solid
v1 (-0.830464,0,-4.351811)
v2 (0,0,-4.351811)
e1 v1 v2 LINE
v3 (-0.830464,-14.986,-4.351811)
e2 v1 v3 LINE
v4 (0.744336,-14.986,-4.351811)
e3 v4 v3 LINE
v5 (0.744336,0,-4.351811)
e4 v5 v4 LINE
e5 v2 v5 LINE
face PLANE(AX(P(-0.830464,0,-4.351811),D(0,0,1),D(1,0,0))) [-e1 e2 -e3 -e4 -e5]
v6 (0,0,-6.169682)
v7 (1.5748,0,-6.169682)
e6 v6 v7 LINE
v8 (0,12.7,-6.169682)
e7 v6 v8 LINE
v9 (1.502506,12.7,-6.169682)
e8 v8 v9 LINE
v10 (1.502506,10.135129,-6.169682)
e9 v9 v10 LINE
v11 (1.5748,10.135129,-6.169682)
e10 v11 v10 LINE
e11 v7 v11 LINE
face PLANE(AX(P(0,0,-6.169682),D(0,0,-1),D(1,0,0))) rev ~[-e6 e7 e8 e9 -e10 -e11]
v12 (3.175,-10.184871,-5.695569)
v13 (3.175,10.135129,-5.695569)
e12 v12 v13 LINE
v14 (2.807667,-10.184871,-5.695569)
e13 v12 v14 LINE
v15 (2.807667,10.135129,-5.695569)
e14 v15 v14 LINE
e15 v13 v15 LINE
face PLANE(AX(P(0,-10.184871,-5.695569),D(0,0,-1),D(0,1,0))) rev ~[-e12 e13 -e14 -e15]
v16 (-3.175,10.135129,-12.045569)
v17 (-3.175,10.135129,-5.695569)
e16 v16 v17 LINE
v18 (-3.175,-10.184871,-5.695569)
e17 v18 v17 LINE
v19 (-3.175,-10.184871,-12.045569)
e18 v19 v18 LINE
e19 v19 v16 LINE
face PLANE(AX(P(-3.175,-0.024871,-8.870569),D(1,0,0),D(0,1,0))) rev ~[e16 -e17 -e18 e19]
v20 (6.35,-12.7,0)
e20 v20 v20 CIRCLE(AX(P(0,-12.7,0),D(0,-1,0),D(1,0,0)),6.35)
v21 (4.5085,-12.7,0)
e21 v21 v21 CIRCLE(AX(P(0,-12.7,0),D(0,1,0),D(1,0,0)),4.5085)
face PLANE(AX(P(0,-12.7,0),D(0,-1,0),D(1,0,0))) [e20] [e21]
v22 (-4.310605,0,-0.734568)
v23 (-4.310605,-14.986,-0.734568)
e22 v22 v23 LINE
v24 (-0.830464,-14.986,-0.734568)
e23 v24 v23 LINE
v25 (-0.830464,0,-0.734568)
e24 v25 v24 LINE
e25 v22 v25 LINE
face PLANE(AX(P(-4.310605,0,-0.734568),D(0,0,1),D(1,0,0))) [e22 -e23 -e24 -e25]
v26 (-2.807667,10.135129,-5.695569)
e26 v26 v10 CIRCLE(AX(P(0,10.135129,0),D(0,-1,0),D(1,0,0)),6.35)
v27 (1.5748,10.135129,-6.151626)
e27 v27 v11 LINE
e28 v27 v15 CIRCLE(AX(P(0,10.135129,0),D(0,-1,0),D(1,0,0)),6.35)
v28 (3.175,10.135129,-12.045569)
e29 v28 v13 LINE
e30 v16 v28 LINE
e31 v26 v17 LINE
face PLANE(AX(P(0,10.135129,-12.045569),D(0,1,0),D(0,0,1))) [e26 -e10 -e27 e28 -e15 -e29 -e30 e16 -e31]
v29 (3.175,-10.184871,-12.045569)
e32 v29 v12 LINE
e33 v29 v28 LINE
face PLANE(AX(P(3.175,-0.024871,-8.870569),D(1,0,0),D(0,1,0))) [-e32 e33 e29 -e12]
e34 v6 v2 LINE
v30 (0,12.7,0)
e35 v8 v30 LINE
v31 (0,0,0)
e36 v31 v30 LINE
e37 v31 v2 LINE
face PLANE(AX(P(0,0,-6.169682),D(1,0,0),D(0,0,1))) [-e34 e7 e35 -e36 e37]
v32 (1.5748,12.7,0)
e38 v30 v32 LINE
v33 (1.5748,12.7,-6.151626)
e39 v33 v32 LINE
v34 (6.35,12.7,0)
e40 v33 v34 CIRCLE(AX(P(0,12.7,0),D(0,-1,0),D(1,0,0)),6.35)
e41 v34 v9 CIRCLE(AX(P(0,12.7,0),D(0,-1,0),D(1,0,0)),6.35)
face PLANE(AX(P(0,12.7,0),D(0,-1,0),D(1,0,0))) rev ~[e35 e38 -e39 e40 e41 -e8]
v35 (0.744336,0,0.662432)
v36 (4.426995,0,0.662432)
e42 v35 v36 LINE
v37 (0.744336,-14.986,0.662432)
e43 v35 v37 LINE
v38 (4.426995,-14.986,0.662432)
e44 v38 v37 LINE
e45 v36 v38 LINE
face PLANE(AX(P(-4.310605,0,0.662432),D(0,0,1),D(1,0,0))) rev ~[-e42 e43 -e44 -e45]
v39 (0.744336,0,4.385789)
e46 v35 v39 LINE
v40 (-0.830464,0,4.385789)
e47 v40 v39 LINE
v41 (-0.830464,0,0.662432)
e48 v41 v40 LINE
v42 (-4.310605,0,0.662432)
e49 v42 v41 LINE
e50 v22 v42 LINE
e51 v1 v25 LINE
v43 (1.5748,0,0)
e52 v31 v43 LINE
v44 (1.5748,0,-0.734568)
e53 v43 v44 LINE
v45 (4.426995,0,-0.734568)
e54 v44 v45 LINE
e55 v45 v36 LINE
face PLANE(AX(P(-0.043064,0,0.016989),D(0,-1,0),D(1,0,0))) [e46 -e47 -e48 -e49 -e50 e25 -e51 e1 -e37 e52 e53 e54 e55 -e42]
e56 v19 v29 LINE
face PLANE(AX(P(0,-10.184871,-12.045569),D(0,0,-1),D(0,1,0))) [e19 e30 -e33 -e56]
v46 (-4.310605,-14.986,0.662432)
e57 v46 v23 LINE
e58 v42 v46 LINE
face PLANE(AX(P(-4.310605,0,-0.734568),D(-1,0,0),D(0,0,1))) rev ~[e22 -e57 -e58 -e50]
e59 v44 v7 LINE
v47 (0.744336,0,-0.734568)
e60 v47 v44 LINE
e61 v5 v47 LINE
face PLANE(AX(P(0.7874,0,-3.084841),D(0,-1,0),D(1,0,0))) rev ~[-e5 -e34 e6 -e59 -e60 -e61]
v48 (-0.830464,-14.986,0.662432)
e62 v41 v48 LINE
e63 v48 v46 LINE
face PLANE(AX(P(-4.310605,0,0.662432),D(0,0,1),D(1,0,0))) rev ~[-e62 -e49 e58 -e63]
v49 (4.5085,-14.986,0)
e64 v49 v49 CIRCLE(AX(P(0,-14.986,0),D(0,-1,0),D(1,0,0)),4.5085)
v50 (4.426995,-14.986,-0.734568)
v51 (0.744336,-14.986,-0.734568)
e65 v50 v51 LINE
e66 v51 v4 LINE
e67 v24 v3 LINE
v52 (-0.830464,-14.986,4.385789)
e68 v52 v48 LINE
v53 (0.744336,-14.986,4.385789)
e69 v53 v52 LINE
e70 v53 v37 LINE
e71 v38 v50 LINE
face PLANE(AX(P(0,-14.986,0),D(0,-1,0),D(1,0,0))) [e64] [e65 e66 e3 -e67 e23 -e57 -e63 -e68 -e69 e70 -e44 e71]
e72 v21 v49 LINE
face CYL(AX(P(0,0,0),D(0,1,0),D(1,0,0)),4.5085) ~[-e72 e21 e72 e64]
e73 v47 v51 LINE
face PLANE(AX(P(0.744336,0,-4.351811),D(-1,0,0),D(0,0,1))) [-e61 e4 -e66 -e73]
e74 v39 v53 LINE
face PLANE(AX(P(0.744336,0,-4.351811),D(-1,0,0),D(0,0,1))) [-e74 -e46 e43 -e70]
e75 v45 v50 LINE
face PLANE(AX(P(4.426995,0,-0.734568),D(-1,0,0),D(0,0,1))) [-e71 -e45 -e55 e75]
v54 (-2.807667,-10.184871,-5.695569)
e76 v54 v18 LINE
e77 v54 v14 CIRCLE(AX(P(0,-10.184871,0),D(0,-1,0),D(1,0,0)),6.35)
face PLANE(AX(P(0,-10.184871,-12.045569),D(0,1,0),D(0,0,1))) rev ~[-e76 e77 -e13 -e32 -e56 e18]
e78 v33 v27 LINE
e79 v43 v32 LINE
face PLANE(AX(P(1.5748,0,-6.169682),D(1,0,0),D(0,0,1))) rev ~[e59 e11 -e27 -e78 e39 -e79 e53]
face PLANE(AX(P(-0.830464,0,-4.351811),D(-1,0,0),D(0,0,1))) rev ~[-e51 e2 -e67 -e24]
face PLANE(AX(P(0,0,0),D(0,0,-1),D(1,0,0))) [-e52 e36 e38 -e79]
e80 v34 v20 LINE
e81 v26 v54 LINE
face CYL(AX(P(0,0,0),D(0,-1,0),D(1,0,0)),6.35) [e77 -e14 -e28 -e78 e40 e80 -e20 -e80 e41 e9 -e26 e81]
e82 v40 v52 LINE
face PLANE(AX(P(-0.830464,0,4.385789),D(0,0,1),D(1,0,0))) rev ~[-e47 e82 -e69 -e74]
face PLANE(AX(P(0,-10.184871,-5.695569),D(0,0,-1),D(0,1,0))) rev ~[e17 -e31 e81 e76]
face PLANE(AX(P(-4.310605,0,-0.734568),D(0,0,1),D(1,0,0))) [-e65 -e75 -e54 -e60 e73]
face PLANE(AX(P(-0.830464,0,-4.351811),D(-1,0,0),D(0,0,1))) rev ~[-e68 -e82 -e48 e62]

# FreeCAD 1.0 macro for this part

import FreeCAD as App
import Part
import Sketcher
from FreeCAD import Vector
Q = App.Units.Quantity

doc = App.newDocument("Part")
params = doc.addObject("Spreadsheet::Sheet", "Params")
for row, (alias, value) in enumerate([
    ("sketch1_diameter", "0.5 in"),
    ("pad1_length", "1 in"),
    ("sketch2_width", "0.8 in"),
    ("sketch2_height", "0.25 in"),
    ("pad2_length", "0.25 in"),
    ("sketch3_width", "0.062 in"),
    ("pocket1_length", "1.58 in"),
    ("sketch4_diameter", "0.355 in"),
    ("pad3_length", "0.59 in"),
    ("sketch5_width", "0.344 in"),
    ("sketch5_height", "0.055 in"),
    ("pocket2_length", "0.9 in"),
    ("sketch6_width", "0.062 in"),
    ("sketch6_height", "0.344 in"),
    ("pocket3_length", "1.46 in"),
], start=1):
    params.set(f"A{row}", alias)
    params.set(f"B{row}", "=" + value)
    params.setAlias(f"B{row}", alias)

body = doc.addObject("PartDesign::Body", "Body")

# Sketch on XZ plane
sketch1 = body.newObject("Sketcher::SketchObject", "Sketch")
sketch1.AttachmentSupport = (doc.getObject("XZ_Plane"), [""])
sketch1.MapMode = "FlatFace"
sketch1.addGeometry(Part.Circle(Vector(0, 0, 0), Vector(0, 0, 1), 6), False)
sketch1.addConstraint(Sketcher.Constraint("Coincident", 0, 3, -1, 1))
sketch1.addConstraint(Sketcher.Constraint("Diameter", 0, Q("0.5 in")))
sketch1.setExpression("Constraints[1]", "Params.sketch1_diameter")
pad1 = body.newObject("PartDesign::Pad", "Pad")
pad1.Profile = sketch1
pad1.setExpression("Length", "Params.pad1_length")
pad1.Midplane = True

# Sketch on YZ plane
sketch2 = body.newObject("Sketcher::SketchObject", "Sketch001")
sketch2.AttachmentSupport = (doc.getObject("YZ_Plane"), [""])
sketch2.MapMode = "FlatFace"
sketch2.addGeometry(Part.LineSegment(Vector(-10, -6, 0), Vector(-10, -12, 0)), False)
sketch2.addGeometry(Part.LineSegment(Vector(-10, -12, 0), Vector(10, -12, 0)), False)
sketch2.addGeometry(Part.LineSegment(Vector(10, -12, 0), Vector(10, -6, 0)), False)
sketch2.addGeometry(Part.LineSegment(Vector(10, -6, 0), Vector(-10, -6, 0)), False)
sketch2.addConstraint(Sketcher.Constraint("Coincident", 0, 2, 1, 1))
sketch2.addConstraint(Sketcher.Constraint("Coincident", 1, 2, 2, 1))
sketch2.addConstraint(Sketcher.Constraint("Coincident", 2, 2, 3, 1))
sketch2.addConstraint(Sketcher.Constraint("Coincident", 3, 2, 0, 1))
sketch2.addConstraint(Sketcher.Constraint("Vertical", 0))
sketch2.addConstraint(Sketcher.Constraint("Horizontal", 1))
sketch2.addConstraint(Sketcher.Constraint("Vertical", 2))
sketch2.addConstraint(Sketcher.Constraint("Horizontal", 3))
sketch2.addConstraint(Sketcher.Constraint("DistanceX", 1, 1, 1, 2, Q("0.8 in")))
sketch2.addConstraint(Sketcher.Constraint("DistanceY", 0, 2, 0, 1, Q("0.25 in")))
sketch2.addConstraint(Sketcher.Constraint("DistanceX", 0, 2, -1, 1, 10.184871))
sketch2.addConstraint(Sketcher.Constraint("DistanceY", 0, 2, -1, 1, 12.045569))
sketch2.setExpression("Constraints[8]", "Params.sketch2_width")
sketch2.setExpression("Constraints[9]", "Params.sketch2_height")
pad2 = body.newObject("PartDesign::Pad", "Pad001")
pad2.Profile = sketch2
pad2.setExpression("Length", "Params.pad2_length")
pad2.Midplane = True

# Sketch on XZ plane
sketch3 = body.newObject("Sketcher::SketchObject", "Sketch002")
sketch3.AttachmentSupport = (doc.getObject("XZ_Plane"), [""])
sketch3.MapMode = "FlatFace"
sketch3.addGeometry(Part.LineSegment(Vector(0, 0, 0), Vector(0, -6.2, 0)), False)
sketch3.addGeometry(Part.LineSegment(Vector(0, -6.2, 0), Vector(1.6, -6.2, 0)), False)
sketch3.addGeometry(Part.LineSegment(Vector(1.6, -6.2, 0), Vector(1.6, 0, 0)), False)
sketch3.addGeometry(Part.LineSegment(Vector(1.6, 0, 0), Vector(0, 0, 0)), False)
sketch3.addConstraint(Sketcher.Constraint("Coincident", 0, 2, 1, 1))
sketch3.addConstraint(Sketcher.Constraint("Coincident", 1, 2, 2, 1))
sketch3.addConstraint(Sketcher.Constraint("Coincident", 2, 2, 3, 1))
sketch3.addConstraint(Sketcher.Constraint("Coincident", 3, 2, 0, 1))
sketch3.addConstraint(Sketcher.Constraint("Vertical", 0))
sketch3.addConstraint(Sketcher.Constraint("Horizontal", 1))
sketch3.addConstraint(Sketcher.Constraint("Vertical", 2))
sketch3.addConstraint(Sketcher.Constraint("Horizontal", 3))
sketch3.addConstraint(Sketcher.Constraint("Coincident", 3, 2, -1, 1))
sketch3.addConstraint(Sketcher.Constraint("DistanceX", 1, 1, 1, 2, Q("0.062 in")))
sketch3.addConstraint(Sketcher.Constraint("DistanceY", 0, 2, 0, 1, 6.169682))
sketch3.setExpression("Constraints[9]", "Params.sketch3_width")
pocket1 = body.newObject("PartDesign::Pocket", "Pocket")
pocket1.Profile = sketch3
pocket1.setExpression("Length", "Params.pocket1_length")

# Sketch on XZ plane
sketch4 = body.newObject("Sketcher::SketchObject", "Sketch003")
sketch4.AttachmentSupport = (doc.getObject("XZ_Plane"), [""])
sketch4.MapMode = "FlatFace"
sketch4.addGeometry(Part.Circle(Vector(0, 0, 0), Vector(0, 0, 1), 4.5), False)
sketch4.addConstraint(Sketcher.Constraint("Coincident", 0, 3, -1, 1))
sketch4.addConstraint(Sketcher.Constraint("Diameter", 0, Q("0.355 in")))
sketch4.setExpression("Constraints[1]", "Params.sketch4_diameter")
pad3 = body.newObject("PartDesign::Pad", "Pad002")
pad3.Profile = sketch4
pad3.setExpression("Length", "Params.pad3_length")

# Sketch on XZ plane
sketch5 = body.newObject("Sketcher::SketchObject", "Sketch004")
sketch5.AttachmentSupport = (doc.getObject("XZ_Plane"), [""])
sketch5.MapMode = "FlatFace"
sketch5.addGeometry(Part.LineSegment(Vector(-4.3, 0.7, 0), Vector(-4.3, -0.7, 0)), False)
sketch5.addGeometry(Part.LineSegment(Vector(-4.3, -0.7, 0), Vector(4.4, -0.7, 0)), False)
sketch5.addGeometry(Part.LineSegment(Vector(4.4, -0.7, 0), Vector(4.4, 0.7, 0)), False)
sketch5.addGeometry(Part.LineSegment(Vector(4.4, 0.7, 0), Vector(-4.3, 0.7, 0)), False)
sketch5.addConstraint(Sketcher.Constraint("Coincident", 0, 2, 1, 1))
sketch5.addConstraint(Sketcher.Constraint("Coincident", 1, 2, 2, 1))
sketch5.addConstraint(Sketcher.Constraint("Coincident", 2, 2, 3, 1))
sketch5.addConstraint(Sketcher.Constraint("Coincident", 3, 2, 0, 1))
sketch5.addConstraint(Sketcher.Constraint("Vertical", 0))
sketch5.addConstraint(Sketcher.Constraint("Horizontal", 1))
sketch5.addConstraint(Sketcher.Constraint("Vertical", 2))
sketch5.addConstraint(Sketcher.Constraint("Horizontal", 3))
sketch5.addConstraint(Sketcher.Constraint("DistanceX", 1, 1, 1, 2, Q("0.344 in")))
sketch5.addConstraint(Sketcher.Constraint("DistanceY", 0, 2, 0, 1, Q("0.055 in")))
sketch5.addConstraint(Sketcher.Constraint("DistanceY", 0, 2, -1, 1, 0.734568))
sketch5.addConstraint(Sketcher.Constraint("DistanceX", 0, 2, -1, 1, 4.310605))
sketch5.setExpression("Constraints[8]", "Params.sketch5_width")
sketch5.setExpression("Constraints[9]", "Params.sketch5_height")
pocket2 = body.newObject("PartDesign::Pocket", "Pocket001")
pocket2.Profile = sketch5
pocket2.setExpression("Length", "Params.pocket2_length")
pocket2.Reversed = True

# Sketch on XZ plane
sketch6 = body.newObject("Sketcher::SketchObject", "Sketch005")
sketch6.AttachmentSupport = (doc.getObject("XZ_Plane"), [""])
sketch6.MapMode = "FlatFace"
sketch6.addGeometry(Part.LineSegment(Vector(-0.8, 4.4, 0), Vector(-0.8, -4.4, 0)), False)
sketch6.addGeometry(Part.LineSegment(Vector(-0.8, -4.4, 0), Vector(0.7, -4.4, 0)), False)
sketch6.addGeometry(Part.LineSegment(Vector(0.7, -4.4, 0), Vector(0.7, 4.4, 0)), False)
sketch6.addGeometry(Part.LineSegment(Vector(0.7, 4.4, 0), Vector(-0.8, 4.4, 0)), False)
sketch6.addConstraint(Sketcher.Constraint("Coincident", 0, 2, 1, 1))
sketch6.addConstraint(Sketcher.Constraint("Coincident", 1, 2, 2, 1))
sketch6.addConstraint(Sketcher.Constraint("Coincident", 2, 2, 3, 1))
sketch6.addConstraint(Sketcher.Constraint("Coincident", 3, 2, 0, 1))
sketch6.addConstraint(Sketcher.Constraint("Vertical", 0))
sketch6.addConstraint(Sketcher.Constraint("Horizontal", 1))
sketch6.addConstraint(Sketcher.Constraint("Vertical", 2))
sketch6.addConstraint(Sketcher.Constraint("Horizontal", 3))
sketch6.addConstraint(Sketcher.Constraint("DistanceX", 1, 1, 1, 2, Q("0.062 in")))
sketch6.addConstraint(Sketcher.Constraint("DistanceY", 0, 2, 0, 1, Q("0.344 in")))
sketch6.addConstraint(Sketcher.Constraint("DistanceY", 0, 2, -1, 1, 4.351811))
sketch6.addConstraint(Sketcher.Constraint("DistanceX", 0, 2, -1, 1, 0.830464))
sketch6.setExpression("Constraints[8]", "Params.sketch6_width")
sketch6.setExpression("Constraints[9]", "Params.sketch6_height")
pocket3 = body.newObject("PartDesign::Pocket", "Pocket002")
pocket3.Profile = sketch6
pocket3.setExpression("Length", "Params.pocket3_length")
pocket3.Reversed = True

doc.recompute()
